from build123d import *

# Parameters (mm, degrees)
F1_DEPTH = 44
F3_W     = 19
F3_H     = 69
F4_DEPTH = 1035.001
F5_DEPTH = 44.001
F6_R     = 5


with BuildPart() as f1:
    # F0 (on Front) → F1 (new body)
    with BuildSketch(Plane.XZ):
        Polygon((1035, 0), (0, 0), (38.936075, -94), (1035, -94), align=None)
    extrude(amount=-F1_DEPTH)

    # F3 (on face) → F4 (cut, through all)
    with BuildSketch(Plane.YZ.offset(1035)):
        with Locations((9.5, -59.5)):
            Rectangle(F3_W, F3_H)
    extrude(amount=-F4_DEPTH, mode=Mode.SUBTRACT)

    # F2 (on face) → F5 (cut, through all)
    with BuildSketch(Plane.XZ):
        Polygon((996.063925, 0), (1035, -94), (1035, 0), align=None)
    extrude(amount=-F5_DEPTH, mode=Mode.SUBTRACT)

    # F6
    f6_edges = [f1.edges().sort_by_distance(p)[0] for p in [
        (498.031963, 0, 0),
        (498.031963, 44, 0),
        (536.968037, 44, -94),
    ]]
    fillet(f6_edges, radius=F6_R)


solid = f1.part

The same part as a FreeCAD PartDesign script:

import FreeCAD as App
import Part
import Sketcher
from FreeCAD import Vector
Q = App.Units.Quantity


def edges_at(feature, points):
    """Names of the edges that pass closest to the given points."""
    edges = feature.Shape.Edges
    near = lambda p: min(range(len(edges)), key=lambda i: edges[i].distToShape(Part.Vertex(*p))[0])
    return sorted({f"Edge{near(p) + 1}" for p in points})


def add_polygon(sketch, points):
    """Adds a closed chain of lines whose ends are joined by coincident constraints."""
    first, n = sketch.GeometryCount, len(points)
    for a, b in zip(points, points[1:] + points[:1]):
        sketch.addGeometry(Part.LineSegment(App.Vector(*a, 0), App.Vector(*b, 0)), False)
    for i in range(n):
        sketch.addConstraint(Sketcher.Constraint("Coincident", first + i, 2, first + (i + 1) % n, 1))

doc = App.newDocument("Part")
body = doc.addObject("PartDesign::Body", "Body")

# Sketch on XZ plane
sketch1 = body.newObject("Sketcher::SketchObject", "Sketch")
sketch1.AttachmentSupport = (doc.getObject("XZ_Plane"), [""])
sketch1.MapMode = "FlatFace"
add_polygon(sketch1, [(1035, 0), (0, 0), (39, -94), (1035, -94)])  # lines 0-3
sketch1.addConstraint([
    Sketcher.Constraint("Horizontal", 0),
    Sketcher.Constraint("Horizontal", 2),
    Sketcher.Constraint("Vertical", 3),
    Sketcher.Constraint("Coincident", 0, 2, -1, 1),
    Sketcher.Constraint("DistanceX", 0, 2, 0, 1, Q("1035 mm")),
    Sketcher.Constraint("DistanceY", 3, 1, 3, 2, Q("94 mm")),
    Sketcher.Constraint("Angle", 1, Q("-67.5 deg")),
])
pad1 = body.newObject("PartDesign::Pad", "Pad")
pad1.Profile = sketch1
pad1.Length = 44
pad1.Reversed = True

# Sketch on YZ plane
sketch2 = body.newObject("Sketcher::SketchObject", "Sketch001")
sketch2.AttachmentSupport = (doc.getObject("YZ_Plane"), [""])
sketch2.MapMode = "FlatFace"
sketch2.AttachmentOffset = App.Placement(Vector(0, 0, 1035), App.Rotation())
add_polygon(sketch2, [(0, -25), (0, -94), (19, -94), (19, -25)])  # lines 0-3
sketch2.addConstraint([
    Sketcher.Constraint("Vertical", 0),
    Sketcher.Constraint("Horizontal", 1),
    Sketcher.Constraint("Vertical", 2),
    Sketcher.Constraint("Horizontal", 3),
    Sketcher.Constraint("PointOnObject", 0, 2, -2),
    Sketcher.Constraint("DistanceX", 1, 1, 1, 2, Q("19 mm")),
    Sketcher.Constraint("DistanceY", 0, 2, 0, 1, Q("69 mm")),
    Sketcher.Constraint("DistanceY", 0, 2, -1, 1, Q("94 mm")),
])
pocket1 = body.newObject("PartDesign::Pocket", "Pocket")
pocket1.Profile = sketch2
pocket1.Type = "ThroughAll"

# Sketch on XZ plane
sketch3 = body.newObject("Sketcher::SketchObject", "Sketch002")
sketch3.AttachmentSupport = (doc.getObject("XZ_Plane"), [""])
sketch3.MapMode = "FlatFace"
add_polygon(sketch3, [(996, 0), (1035, -94), (1035, 0)])  # lines 0-2
sketch3.addConstraint([
    Sketcher.Constraint("Vertical", 1),
    Sketcher.Constraint("Horizontal", 2),
    Sketcher.Constraint("PointOnObject", 1, 2, -1),
    Sketcher.Constraint("DistanceY", 1, 1, 1, 2, Q("94 mm")),
    Sketcher.Constraint("DistanceX", -1, 1, 0, 2, Q("1035 mm")),
    Sketcher.Constraint("Angle", 0, Q("-67.5 deg")),
])
pocket2 = body.newObject("PartDesign::Pocket", "Pocket001")
pocket2.Profile = sketch3
pocket2.Type = "ThroughAll"
doc.recompute()

fillet = body.newObject("PartDesign::Fillet", "Fillet")
fillet.Base = (pocket2, edges_at(pocket2, [(498.032, 0, 0), (498.032, 44, 0), (536.968, 44, -94)]))
fillet.Radius = 5

doc.recompute()
